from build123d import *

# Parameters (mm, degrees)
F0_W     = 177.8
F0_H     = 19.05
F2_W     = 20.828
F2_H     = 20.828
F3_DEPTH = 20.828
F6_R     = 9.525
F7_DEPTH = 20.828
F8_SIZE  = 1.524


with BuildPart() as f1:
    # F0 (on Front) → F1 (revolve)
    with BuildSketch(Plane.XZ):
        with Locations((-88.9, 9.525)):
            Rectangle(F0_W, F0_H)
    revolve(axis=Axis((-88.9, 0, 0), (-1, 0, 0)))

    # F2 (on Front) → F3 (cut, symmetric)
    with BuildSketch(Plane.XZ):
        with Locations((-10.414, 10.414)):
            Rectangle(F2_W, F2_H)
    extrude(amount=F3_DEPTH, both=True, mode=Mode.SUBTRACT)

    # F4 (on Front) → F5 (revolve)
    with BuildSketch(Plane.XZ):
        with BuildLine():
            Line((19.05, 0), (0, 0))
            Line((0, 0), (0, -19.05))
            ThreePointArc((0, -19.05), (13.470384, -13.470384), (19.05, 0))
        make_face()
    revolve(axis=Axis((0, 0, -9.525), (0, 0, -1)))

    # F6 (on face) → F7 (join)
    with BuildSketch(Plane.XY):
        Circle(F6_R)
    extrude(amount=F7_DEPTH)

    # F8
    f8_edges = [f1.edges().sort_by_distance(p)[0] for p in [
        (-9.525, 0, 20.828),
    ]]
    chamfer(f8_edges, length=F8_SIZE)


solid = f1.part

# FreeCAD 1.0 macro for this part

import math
import FreeCAD as App
import Part
import Sketcher

V = App.Vector
Q = App.Units.Quantity


def edges_at(feature, points):
    """Names of the edges that pass closest to the given points."""
    edges = feature.Shape.Edges
    near = lambda p: min(range(len(edges)), key=lambda i: edges[i].distToShape(Part.Vertex(*p))[0])
    return sorted({f"Edge{near(p) + 1}" for p in points})

doc = App.newDocument("Part")
params = doc.addObject("Spreadsheet::Sheet", "Params")
for row, (alias, value) in enumerate([
    ("sketch1_width", "7 in"),
    ("sketch1_height", "0.75 in"),
    ("revolution_angle", "360 deg"),
    ("sketch2_width", "0.82 in"),
    ("pocket1_length", "1.64 in"),
    ("sketch3_radius", "0.75 in"),
    ("revolution2_angle", "360 deg"),
    ("sketch4_diameter", "0.75 in"),
    ("pad1_length", "0.82 in"),
    ("chamfer_size", "0.06 in"),
], start=1):
    params.set(f"A{row}", alias)
    params.set(f"B{row}", "=" + value)
    params.setAlias(f"B{row}", alias)

body = doc.addObject("PartDesign::Body", "Body")

sketch1 = body.newObject("Sketcher::SketchObject", "Sketch")
sketch1.AttachmentSupport = (doc.getObject("XZ_Plane"), [""])
sketch1.MapMode = "FlatFace"
sketch1.addGeometry([
    Part.LineSegment(V(-177.8, 19.05, 0), V(-177.8, 0, 0)),
    Part.LineSegment(V(-177.8, 0, 0), V(0, 0, 0)),
    Part.LineSegment(V(0, 0, 0), V(0, 19.05, 0)),
    Part.LineSegment(V(0, 19.05, 0), V(-177.8, 19.05, 0)),
], False)
sketch1.addConstraint([
    Sketcher.Constraint("Coincident", 0, 2, 1, 1),
    Sketcher.Constraint("Coincident", 1, 2, 2, 1),
    Sketcher.Constraint("Coincident", 2, 2, 3, 1),
    Sketcher.Constraint("Coincident", 3, 2, 0, 1),
    Sketcher.Constraint("Vertical", 0),
    Sketcher.Constraint("Horizontal", 1),
    Sketcher.Constraint("Vertical", 2),
    Sketcher.Constraint("Horizontal", 3),
    Sketcher.Constraint("Coincident", 1, 2, -1, 1),
    Sketcher.Constraint("DistanceX", 1, 1, 1, 2, Q("7 in")),
    Sketcher.Constraint("DistanceY", 0, 2, 0, 1, Q("0.75 in")),
])
sketch1.setExpression("Constraints[9]", "Params.sketch1_width")
sketch1.setExpression("Constraints[10]", "Params.sketch1_height")
revolution = body.newObject("PartDesign::Revolution", "Revolution")
revolution.Profile = sketch1
revolution.ReferenceAxis = (sketch1, ["H_Axis"])
revolution.setExpression("Angle", "Params.revolution_angle")

sketch2 = body.newObject("Sketcher::SketchObject", "Sketch001")
sketch2.AttachmentSupport = (doc.getObject("XZ_Plane"), [""])
sketch2.MapMode = "FlatFace"
sketch2.addGeometry([
    Part.LineSegment(V(-20.828, 20.828, 0), V(-20.828, 0, 0)),
    Part.LineSegment(V(-20.828, 0, 0), V(0, 0, 0)),
    Part.LineSegment(V(0, 0, 0), V(0, 20.828, 0)),
    Part.LineSegment(V(0, 20.828, 0), V(-20.828, 20.828, 0)),
], False)
sketch2.addConstraint([
    Sketcher.Constraint("Coincident", 0, 2, 1, 1),
    Sketcher.Constraint("Coincident", 1, 2, 2, 1),
    Sketcher.Constraint("Coincident", 2, 2, 3, 1),
    Sketcher.Constraint("Coincident", 3, 2, 0, 1),
    Sketcher.Constraint("Vertical", 0),
    Sketcher.Constraint("Horizontal", 1),
    Sketcher.Constraint("Vertical", 2),
    Sketcher.Constraint("Horizontal", 3),
    Sketcher.Constraint("Coincident", 1, 2, -1, 1),
    Sketcher.Constraint("Equal", 3, 0),
    Sketcher.Constraint("DistanceX", 1, 1, 1, 2, Q("0.82 in")),
])
sketch2.setExpression("Constraints[10]", "Params.sketch2_width")
pocket1 = body.newObject("PartDesign::Pocket", "Pocket")
pocket1.Profile = sketch2
pocket1.setExpression("Length", "Params.pocket1_length")
pocket1.Midplane = True

sketch3 = body.newObject("Sketcher::SketchObject", "Sketch002")
sketch3.AttachmentSupport = (doc.getObject("XZ_Plane"), [""])
sketch3.MapMode = "FlatFace"
sketch3.addGeometry([
    Part.LineSegment(V(19.05, 0, 0), V(0, 0, 0)),
    Part.LineSegment(V(0, 0, 0), V(0, -19.05, 0)),
    Part.ArcOfCircle(Part.Circle(V(-0.000001, 0.000001, 0), V(0, 0, 1), 19.050001), math.radians(-89.999998), math.radians(-0.000002)),
], False)
sketch3.addConstraint([
    Sketcher.Constraint("Coincident", 0, 2, 1, 1),
    Sketcher.Constraint("Coincident", 1, 2, 2, 1),
    Sketcher.Constraint("Coincident", 2, 2, 0, 1),
    Sketcher.Constraint("Horizontal", 0),
    Sketcher.Constraint("Vertical", 1),
    Sketcher.Constraint("Coincident", 2, 3, -1, 1),
    Sketcher.Constraint("Coincident", 0, 2, -1, 1),
    Sketcher.Constraint("Radius", 2, Q("0.75 in")),
])
sketch3.setExpression("Constraints[7]", "Params.sketch3_radius")
revolution2 = body.newObject("PartDesign::Revolution", "Revolution001")
revolution2.Profile = sketch3
revolution2.ReferenceAxis = (sketch3, ["V_Axis"])
revolution2.setExpression("Angle", "Params.revolution2_angle")

sketch4 = body.newObject("Sketcher::SketchObject", "Sketch003")
sketch4.AttachmentSupport = (doc.getObject("XY_Plane"), [""])
sketch4.MapMode = "FlatFace"
sketch4.addGeometry(Part.Circle(V(0, 0, 0), V(0, 0, 1), 9.525), False)
sketch4.addConstraint([
    Sketcher.Constraint("Coincident", 0, 3, -1, 1),
    Sketcher.Constraint("Diameter", 0, Q("0.75 in")),
])
sketch4.setExpression("Constraints[1]", "Params.sketch4_diameter")
pad1 = body.newObject("PartDesign::Pad", "Pad")
pad1.Profile = sketch4
pad1.setExpression("Length", "Params.pad1_length")
doc.recompute()

chamfer = body.newObject("PartDesign::Chamfer", "Chamfer")
chamfer.Base = (pad1, edges_at(pad1, [(-9.525, 0, 20.828)]))
chamfer.setExpression("Size", "Params.chamfer_size")

doc.recompute()
